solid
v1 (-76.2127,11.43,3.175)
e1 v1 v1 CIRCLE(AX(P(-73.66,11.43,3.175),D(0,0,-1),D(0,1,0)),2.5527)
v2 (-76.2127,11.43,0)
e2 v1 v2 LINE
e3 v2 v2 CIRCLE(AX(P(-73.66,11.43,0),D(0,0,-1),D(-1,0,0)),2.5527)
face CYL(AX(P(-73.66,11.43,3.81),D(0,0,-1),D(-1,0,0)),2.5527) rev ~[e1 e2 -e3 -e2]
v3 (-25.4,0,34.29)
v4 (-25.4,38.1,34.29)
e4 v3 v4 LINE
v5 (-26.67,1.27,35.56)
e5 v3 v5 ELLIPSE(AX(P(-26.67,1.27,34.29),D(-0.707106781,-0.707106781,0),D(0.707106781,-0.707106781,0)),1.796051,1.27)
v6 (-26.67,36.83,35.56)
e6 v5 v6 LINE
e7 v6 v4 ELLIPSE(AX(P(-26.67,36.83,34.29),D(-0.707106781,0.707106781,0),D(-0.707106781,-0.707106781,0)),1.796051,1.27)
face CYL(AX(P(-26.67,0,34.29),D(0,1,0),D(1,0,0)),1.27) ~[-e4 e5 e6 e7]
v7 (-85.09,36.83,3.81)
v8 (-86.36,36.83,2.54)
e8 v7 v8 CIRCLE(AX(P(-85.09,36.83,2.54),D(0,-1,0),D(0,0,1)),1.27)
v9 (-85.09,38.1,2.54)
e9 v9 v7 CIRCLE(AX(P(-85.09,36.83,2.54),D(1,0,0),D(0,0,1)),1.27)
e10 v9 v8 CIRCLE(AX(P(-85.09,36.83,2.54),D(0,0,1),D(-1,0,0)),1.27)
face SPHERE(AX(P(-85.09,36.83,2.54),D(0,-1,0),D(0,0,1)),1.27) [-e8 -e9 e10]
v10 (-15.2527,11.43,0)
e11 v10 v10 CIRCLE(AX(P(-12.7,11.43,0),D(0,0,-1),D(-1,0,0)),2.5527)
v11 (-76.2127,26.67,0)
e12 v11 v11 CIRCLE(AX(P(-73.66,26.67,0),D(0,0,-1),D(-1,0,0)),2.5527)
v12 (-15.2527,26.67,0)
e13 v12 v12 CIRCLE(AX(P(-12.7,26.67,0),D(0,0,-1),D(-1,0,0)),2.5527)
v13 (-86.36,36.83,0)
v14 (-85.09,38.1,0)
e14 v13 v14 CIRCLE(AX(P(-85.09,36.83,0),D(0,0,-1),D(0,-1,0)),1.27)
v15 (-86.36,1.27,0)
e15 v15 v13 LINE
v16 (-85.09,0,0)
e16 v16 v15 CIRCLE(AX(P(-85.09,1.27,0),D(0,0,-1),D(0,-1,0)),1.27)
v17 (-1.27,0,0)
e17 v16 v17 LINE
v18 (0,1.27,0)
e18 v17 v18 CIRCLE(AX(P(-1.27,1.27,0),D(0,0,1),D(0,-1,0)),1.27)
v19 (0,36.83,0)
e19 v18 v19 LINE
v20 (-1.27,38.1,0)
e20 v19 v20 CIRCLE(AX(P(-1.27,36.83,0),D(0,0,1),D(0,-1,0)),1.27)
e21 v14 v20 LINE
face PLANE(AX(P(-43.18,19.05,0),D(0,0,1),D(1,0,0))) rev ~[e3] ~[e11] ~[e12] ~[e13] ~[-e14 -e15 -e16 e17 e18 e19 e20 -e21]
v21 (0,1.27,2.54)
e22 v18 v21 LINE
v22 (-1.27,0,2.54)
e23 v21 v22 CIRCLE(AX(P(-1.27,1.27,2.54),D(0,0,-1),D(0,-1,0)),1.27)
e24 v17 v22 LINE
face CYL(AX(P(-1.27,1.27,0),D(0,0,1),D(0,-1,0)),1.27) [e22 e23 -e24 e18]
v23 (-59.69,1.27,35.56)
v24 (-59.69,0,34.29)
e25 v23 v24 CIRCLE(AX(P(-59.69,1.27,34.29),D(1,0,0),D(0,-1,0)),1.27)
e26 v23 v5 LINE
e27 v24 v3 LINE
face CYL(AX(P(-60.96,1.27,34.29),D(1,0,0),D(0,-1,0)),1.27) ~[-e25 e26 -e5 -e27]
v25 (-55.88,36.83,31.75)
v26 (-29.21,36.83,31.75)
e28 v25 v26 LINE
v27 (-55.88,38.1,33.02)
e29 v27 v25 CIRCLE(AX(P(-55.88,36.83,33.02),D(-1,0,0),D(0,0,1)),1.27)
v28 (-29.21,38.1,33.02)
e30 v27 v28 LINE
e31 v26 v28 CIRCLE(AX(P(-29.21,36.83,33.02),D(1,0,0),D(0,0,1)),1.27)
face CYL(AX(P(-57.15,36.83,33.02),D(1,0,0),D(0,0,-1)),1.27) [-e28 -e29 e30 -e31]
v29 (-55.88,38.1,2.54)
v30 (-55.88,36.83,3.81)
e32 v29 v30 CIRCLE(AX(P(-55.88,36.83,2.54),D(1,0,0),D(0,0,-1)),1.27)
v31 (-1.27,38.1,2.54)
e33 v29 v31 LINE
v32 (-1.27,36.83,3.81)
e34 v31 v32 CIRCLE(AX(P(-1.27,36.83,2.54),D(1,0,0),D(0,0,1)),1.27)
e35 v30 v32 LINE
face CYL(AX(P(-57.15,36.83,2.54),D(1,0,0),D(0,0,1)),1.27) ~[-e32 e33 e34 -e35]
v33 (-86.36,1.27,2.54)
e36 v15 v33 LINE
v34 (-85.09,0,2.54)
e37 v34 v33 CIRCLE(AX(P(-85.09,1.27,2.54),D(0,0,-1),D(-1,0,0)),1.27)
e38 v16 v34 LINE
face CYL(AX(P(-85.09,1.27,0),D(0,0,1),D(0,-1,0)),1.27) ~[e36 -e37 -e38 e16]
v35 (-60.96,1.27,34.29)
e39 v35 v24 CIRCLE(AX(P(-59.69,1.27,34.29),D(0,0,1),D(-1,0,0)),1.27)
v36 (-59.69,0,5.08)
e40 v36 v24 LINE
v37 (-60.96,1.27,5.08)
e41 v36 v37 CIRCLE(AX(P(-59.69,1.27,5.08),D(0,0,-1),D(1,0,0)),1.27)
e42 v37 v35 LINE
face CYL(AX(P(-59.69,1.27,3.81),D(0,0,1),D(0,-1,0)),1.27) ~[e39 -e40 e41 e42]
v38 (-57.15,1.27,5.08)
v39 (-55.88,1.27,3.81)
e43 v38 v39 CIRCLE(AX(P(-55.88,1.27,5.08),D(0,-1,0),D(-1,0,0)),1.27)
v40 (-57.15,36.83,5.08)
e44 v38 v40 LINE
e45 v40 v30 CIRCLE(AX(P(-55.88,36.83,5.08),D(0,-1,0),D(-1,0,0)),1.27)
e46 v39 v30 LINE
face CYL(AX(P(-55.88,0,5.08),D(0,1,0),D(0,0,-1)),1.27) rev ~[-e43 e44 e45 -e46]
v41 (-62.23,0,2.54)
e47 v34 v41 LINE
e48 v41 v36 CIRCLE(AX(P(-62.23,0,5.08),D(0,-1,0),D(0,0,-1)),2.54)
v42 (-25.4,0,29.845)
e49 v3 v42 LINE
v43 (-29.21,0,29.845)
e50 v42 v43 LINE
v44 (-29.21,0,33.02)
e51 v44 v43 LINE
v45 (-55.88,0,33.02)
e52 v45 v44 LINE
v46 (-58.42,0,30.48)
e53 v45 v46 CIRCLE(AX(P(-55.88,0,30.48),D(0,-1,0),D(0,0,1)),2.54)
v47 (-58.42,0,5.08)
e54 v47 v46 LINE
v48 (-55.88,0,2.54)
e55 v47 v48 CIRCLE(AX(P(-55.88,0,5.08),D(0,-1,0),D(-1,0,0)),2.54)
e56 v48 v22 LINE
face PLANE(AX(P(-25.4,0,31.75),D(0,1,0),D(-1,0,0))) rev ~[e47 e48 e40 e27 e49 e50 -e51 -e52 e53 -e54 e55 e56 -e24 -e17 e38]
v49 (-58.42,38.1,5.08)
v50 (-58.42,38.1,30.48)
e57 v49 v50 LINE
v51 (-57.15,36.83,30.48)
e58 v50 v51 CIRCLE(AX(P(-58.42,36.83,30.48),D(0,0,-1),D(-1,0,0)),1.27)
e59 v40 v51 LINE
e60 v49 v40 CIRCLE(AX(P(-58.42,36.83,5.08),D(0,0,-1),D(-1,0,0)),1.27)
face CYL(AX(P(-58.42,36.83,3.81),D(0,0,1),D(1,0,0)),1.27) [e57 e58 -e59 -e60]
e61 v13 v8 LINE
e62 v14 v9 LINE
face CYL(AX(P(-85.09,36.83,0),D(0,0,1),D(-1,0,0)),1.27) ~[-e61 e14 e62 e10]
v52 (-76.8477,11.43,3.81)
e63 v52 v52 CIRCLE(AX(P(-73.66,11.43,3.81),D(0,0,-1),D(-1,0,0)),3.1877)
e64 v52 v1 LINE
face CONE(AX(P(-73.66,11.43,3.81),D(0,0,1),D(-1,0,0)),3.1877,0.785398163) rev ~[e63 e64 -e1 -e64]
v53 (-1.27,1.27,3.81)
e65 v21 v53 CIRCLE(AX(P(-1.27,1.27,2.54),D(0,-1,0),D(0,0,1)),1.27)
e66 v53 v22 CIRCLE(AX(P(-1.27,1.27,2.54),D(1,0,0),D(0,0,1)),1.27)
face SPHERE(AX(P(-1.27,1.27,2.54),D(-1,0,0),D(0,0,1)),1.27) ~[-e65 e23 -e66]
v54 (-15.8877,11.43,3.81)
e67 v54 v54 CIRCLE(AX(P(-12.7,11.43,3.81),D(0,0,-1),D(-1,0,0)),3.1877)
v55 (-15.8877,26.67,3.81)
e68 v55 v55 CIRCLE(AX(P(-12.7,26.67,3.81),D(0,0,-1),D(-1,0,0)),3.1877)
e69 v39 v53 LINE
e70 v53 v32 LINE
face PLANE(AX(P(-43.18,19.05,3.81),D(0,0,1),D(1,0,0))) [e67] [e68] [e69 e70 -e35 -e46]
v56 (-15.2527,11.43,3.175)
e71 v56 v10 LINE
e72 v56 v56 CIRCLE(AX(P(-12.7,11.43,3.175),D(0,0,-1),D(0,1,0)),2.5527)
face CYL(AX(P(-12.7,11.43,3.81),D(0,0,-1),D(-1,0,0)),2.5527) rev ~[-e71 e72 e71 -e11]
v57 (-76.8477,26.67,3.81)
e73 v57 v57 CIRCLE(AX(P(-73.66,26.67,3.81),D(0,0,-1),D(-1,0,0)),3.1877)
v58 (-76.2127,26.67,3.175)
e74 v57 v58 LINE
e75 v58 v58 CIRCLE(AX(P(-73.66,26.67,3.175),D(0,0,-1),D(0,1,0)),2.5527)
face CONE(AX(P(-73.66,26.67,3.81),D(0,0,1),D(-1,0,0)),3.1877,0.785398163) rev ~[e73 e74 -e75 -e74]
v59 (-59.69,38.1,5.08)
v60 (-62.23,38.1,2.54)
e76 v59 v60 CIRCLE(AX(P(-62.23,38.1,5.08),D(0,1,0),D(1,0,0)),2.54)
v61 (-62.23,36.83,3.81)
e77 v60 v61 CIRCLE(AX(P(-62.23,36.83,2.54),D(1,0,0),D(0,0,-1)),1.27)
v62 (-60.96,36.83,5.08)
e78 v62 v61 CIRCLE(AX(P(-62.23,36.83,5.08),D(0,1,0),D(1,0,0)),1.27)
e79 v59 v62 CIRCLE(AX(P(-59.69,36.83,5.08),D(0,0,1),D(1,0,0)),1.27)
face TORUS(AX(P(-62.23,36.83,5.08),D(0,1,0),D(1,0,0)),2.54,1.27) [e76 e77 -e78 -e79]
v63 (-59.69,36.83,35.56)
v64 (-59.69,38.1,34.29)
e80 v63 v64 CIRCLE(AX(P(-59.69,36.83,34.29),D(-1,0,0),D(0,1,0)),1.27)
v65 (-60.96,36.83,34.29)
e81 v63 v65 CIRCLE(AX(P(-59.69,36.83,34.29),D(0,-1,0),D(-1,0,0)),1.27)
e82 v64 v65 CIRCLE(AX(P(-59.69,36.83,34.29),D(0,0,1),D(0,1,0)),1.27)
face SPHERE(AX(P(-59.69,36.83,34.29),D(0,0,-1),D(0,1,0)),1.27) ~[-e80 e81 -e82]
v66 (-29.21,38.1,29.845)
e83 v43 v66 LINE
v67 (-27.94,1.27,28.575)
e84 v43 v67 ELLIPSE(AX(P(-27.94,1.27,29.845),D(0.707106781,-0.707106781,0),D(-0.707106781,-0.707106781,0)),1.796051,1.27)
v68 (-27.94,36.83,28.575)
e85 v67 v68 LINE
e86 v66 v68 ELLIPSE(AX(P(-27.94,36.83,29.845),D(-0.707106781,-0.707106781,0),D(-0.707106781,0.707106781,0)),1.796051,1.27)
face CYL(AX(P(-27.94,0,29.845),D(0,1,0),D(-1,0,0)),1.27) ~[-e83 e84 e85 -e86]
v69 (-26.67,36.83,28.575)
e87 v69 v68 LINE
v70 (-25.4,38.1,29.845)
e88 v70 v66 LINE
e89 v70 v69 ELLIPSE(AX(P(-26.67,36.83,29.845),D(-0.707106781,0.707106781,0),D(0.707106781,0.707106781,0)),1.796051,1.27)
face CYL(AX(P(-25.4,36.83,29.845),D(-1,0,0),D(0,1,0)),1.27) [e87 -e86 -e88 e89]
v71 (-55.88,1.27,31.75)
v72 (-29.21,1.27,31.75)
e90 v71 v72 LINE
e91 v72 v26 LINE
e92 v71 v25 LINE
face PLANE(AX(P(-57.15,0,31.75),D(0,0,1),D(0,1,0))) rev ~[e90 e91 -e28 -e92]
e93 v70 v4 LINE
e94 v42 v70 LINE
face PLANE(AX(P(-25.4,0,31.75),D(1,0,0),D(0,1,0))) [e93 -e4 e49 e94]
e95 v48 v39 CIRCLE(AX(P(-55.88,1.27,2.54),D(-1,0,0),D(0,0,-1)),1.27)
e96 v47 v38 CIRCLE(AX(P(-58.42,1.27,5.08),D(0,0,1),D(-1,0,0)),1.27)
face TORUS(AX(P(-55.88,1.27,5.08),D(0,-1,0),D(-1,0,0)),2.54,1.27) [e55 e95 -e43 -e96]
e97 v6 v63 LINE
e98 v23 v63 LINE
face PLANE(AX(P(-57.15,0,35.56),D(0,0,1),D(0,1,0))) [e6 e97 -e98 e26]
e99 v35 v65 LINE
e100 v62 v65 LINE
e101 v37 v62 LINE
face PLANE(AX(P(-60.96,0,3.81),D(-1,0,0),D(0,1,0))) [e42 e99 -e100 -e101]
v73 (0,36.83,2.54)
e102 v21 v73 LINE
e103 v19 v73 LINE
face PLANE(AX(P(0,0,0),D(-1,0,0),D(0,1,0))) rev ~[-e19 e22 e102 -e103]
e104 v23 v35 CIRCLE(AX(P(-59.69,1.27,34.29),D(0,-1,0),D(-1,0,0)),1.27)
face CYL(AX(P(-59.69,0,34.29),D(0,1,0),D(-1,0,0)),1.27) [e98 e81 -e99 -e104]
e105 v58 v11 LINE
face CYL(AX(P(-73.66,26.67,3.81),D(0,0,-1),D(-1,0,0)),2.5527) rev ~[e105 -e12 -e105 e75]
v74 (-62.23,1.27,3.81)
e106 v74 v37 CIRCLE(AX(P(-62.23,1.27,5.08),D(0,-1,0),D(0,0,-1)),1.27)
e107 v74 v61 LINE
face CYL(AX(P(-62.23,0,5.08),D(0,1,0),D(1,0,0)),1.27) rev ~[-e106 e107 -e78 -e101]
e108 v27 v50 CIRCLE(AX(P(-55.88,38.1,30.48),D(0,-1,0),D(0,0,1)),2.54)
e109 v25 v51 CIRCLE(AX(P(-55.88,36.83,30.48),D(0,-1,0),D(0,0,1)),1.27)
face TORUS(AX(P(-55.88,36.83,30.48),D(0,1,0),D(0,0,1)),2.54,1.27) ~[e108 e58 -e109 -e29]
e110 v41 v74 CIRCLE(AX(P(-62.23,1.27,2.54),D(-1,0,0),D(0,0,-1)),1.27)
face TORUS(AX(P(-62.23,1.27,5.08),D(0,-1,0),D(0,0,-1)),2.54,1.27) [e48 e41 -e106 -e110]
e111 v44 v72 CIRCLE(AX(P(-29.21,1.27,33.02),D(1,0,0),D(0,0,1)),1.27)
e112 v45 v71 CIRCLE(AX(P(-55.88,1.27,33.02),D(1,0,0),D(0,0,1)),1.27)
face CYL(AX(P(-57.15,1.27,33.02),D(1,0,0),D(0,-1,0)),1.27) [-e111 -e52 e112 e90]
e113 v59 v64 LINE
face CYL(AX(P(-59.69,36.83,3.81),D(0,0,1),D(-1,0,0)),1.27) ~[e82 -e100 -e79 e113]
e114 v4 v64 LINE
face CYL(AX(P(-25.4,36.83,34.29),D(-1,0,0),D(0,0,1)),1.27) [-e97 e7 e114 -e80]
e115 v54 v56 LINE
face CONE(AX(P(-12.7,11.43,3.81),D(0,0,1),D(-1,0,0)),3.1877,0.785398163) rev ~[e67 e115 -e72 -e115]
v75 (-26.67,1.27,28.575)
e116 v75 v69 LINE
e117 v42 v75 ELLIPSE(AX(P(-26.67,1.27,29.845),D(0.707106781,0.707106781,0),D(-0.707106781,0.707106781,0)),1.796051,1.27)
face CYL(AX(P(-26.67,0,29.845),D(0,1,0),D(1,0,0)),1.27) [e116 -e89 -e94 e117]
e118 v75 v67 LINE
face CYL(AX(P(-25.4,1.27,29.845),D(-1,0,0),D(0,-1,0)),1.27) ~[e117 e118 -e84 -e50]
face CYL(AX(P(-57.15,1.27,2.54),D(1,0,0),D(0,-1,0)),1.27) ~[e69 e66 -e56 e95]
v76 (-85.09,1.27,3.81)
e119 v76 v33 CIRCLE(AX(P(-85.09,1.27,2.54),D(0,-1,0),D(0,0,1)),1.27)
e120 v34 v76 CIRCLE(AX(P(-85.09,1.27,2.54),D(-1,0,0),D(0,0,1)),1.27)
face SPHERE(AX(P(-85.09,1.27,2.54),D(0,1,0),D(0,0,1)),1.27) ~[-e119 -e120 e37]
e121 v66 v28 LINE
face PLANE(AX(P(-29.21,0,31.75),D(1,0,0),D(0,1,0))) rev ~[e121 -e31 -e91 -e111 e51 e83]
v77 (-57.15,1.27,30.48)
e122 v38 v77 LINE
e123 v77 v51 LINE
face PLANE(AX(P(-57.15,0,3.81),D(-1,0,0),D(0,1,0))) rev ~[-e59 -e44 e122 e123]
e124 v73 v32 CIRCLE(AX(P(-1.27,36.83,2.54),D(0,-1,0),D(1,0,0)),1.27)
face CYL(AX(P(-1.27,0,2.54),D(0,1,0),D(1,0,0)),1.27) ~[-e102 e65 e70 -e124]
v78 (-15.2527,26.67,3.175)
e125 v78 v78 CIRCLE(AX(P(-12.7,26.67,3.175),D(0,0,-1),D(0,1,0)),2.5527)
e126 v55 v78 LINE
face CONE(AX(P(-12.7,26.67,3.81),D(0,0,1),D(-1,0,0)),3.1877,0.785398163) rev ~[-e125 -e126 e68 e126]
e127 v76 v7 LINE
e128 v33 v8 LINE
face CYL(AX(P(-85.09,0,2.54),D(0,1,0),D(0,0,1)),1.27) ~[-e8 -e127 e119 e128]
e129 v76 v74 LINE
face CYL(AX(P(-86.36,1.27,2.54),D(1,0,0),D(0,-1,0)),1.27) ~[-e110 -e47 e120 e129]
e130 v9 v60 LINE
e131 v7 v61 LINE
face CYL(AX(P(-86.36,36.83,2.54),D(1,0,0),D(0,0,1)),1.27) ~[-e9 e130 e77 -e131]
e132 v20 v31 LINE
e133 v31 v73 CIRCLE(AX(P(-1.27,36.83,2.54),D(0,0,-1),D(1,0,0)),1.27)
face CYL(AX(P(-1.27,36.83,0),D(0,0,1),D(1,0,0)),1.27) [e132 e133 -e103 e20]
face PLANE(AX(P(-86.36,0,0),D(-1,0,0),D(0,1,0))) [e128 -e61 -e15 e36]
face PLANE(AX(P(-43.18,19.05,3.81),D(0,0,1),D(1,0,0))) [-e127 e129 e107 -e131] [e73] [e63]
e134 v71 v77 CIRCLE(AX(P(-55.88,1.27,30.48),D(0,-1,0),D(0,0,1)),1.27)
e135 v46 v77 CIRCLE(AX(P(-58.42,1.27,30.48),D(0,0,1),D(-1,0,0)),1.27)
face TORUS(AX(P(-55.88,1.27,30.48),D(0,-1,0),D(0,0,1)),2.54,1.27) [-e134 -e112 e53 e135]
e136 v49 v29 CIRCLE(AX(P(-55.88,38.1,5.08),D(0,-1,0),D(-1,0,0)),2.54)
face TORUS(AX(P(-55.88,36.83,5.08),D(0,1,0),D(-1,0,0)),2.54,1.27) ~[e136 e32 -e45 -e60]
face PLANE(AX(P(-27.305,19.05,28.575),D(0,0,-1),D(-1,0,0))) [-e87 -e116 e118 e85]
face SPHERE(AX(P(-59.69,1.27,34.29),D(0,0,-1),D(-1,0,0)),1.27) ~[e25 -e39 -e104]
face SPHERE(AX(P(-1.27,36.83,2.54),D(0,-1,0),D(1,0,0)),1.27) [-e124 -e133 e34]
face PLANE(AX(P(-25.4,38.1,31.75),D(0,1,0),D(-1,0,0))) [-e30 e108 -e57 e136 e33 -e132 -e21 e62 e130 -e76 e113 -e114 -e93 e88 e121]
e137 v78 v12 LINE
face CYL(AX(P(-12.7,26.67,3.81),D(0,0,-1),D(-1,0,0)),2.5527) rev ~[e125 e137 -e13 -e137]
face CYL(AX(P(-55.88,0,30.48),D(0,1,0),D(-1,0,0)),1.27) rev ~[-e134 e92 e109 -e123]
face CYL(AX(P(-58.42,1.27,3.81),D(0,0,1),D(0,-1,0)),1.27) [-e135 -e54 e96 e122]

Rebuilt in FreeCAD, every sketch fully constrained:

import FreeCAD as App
import Part
import Sketcher
from FreeCAD import Vector
Q = App.Units.Quantity


def edges_at(feature, points):
    """Names of the edges that pass closest to the given points."""
    edges = feature.Shape.Edges
    near = lambda p: min(range(len(edges)), key=lambda i: edges[i].distToShape(Part.Vertex(*p))[0])
    return sorted({f"Edge{near(p) + 1}" for p in points})

doc = App.newDocument("Part")
body = doc.addObject("PartDesign::Body", "Body")

# Sketch on XY plane
sketch1 = body.newObject("Sketcher::SketchObject", "Sketch")
sketch1.AttachmentSupport = (doc.getObject("XY_Plane"), [""])
sketch1.MapMode = "FlatFace"
sketch1.addGeometry([
    Part.LineSegment(Vector(-86, 38, 0), Vector(-86, 0, 0)),
    Part.LineSegment(Vector(-86, 0, 0), Vector(0, 0, 0)),
    Part.LineSegment(Vector(0, 0, 0), Vector(0, 38, 0)),
    Part.LineSegment(Vector(0, 38, 0), Vector(-86, 38, 0)),
], False)
sketch1.addConstraint([
    Sketcher.Constraint("Coincident", 0, 2, 1, 1),
    Sketcher.Constraint("Coincident", 1, 2, 2, 1),
    Sketcher.Constraint("Coincident", 2, 2, 3, 1),
    Sketcher.Constraint("Coincident", 3, 2, 0, 1),
    Sketcher.Constraint("Vertical", 0),
    Sketcher.Constraint("Horizontal", 1),
    Sketcher.Constraint("Vertical", 2),
    Sketcher.Constraint("Horizontal", 3),
    Sketcher.Constraint("Coincident", 1, 2, -1, 1),
    Sketcher.Constraint("DistanceX", 1, 1, 1, 2, Q("3.4 in")),
    Sketcher.Constraint("DistanceY", 0, 2, 0, 1, Q("1.5 in")),
])
pad1 = body.newObject("PartDesign::Pad", "Pad")
pad1.Profile = sketch1
pad1.Length = Q("0.15 in")

# Sketch on XY plane
sketch2 = body.newObject("Sketcher::SketchObject", "Sketch001")
sketch2.AttachmentSupport = (doc.getObject("XY_Plane"), [""])
sketch2.MapMode = "FlatFace"
sketch2.AttachmentOffset = App.Placement(Vector(0, 0, 0.15 * 25.4), App.Rotation())
sketch2.addGeometry([
    Part.LineSegment(Vector(-61, 38.1, 0), Vector(-61, 0, 0)),
    Part.LineSegment(Vector(-61, 0, 0), Vector(-57.1, 0, 0)),
    Part.LineSegment(Vector(-57.1, 0, 0), Vector(-57.1, 38.1, 0)),
    Part.LineSegment(Vector(-57.1, 38.1, 0), Vector(-61, 38.1, 0)),
], False)
sketch2.addConstraint([
    Sketcher.Constraint("Coincident", 0, 2, 1, 1),
    Sketcher.Constraint("Coincident", 1, 2, 2, 1),
    Sketcher.Constraint("Coincident", 2, 2, 3, 1),
    Sketcher.Constraint("Coincident", 3, 2, 0, 1),
    Sketcher.Constraint("Vertical", 0),
    Sketcher.Constraint("Horizontal", 1),
    Sketcher.Constraint("Vertical", 2),
    Sketcher.Constraint("Horizontal", 3),
    Sketcher.Constraint("PointOnObject", 0, 2, -1),
    Sketcher.Constraint("DistanceY", 0, 2, 0, 1, Q("1.5 in")),
    Sketcher.Constraint("DistanceX", 1, 1, 1, 2, Q("0.15 in")),
    Sketcher.Constraint("DistanceX", 0, 2, -1, 1, Q("2.4 in")),
])
pad2 = body.newObject("PartDesign::Pad", "Pad001")
pad2.Profile = sketch2
pad2.Length = Q("1.25 in")

# Sketch on YZ plane
sketch3 = body.newObject("Sketcher::SketchObject", "Sketch002")
sketch3.AttachmentSupport = (doc.getObject("YZ_Plane"), [""])
sketch3.MapMode = "FlatFace"
sketch3.AttachmentOffset = App.Placement(Vector(0, 0, -2.25 * 25.4), App.Rotation())
sketch3.addGeometry([
    Part.LineSegment(Vector(38.1, 35.6, 0), Vector(0, 35.6, 0)),
    Part.LineSegment(Vector(0, 35.6, 0), Vector(0, 31.8, 0)),
    Part.LineSegment(Vector(0, 31.8, 0), Vector(38.1, 31.8, 0)),
    Part.LineSegment(Vector(38.1, 31.8, 0), Vector(38.1, 35.6, 0)),
], False)
sketch3.addConstraint([
    Sketcher.Constraint("Coincident", 0, 2, 1, 1),
    Sketcher.Constraint("Coincident", 1, 2, 2, 1),
    Sketcher.Constraint("Coincident", 2, 2, 3, 1),
    Sketcher.Constraint("Coincident", 3, 2, 0, 1),
    Sketcher.Constraint("Horizontal", 0),
    Sketcher.Constraint("Vertical", 1),
    Sketcher.Constraint("Horizontal", 2),
    Sketcher.Constraint("Vertical", 3),
    Sketcher.Constraint("PointOnObject", 0, 2, -2),
    Sketcher.Constraint("DistanceX", 0, 2, 0, 1, Q("1.5 in")),
    Sketcher.Constraint("DistanceY", 1, 2, 1, 1, Q("0.15 in")),
    Sketcher.Constraint("DistanceY", -1, 1, 0, 2, Q("1.4 in")),
])
pad3 = body.newObject("PartDesign::Pad", "Pad002")
pad3.Profile = sketch3
pad3.Length = Q("1.25 in")

# Sketch on XY plane
sketch4 = body.newObject("Sketcher::SketchObject", "Sketch003")
sketch4.AttachmentSupport = (doc.getObject("XY_Plane"), [""])
sketch4.MapMode = "FlatFace"
sketch4.AttachmentOffset = App.Placement(Vector(0, 0, 1.25 * 25.4), App.Rotation())
sketch4.addGeometry([
    Part.LineSegment(Vector(-25.4, 38.1, 0), Vector(-25.4, 0, 0)),
    Part.LineSegment(Vector(-25.4, 0, 0), Vector(-29.2, 0, 0)),
    Part.LineSegment(Vector(-29.2, 0, 0), Vector(-29.2, 38.1, 0)),
    Part.LineSegment(Vector(-29.2, 38.1, 0), Vector(-25.4, 38.1, 0)),
], False)
sketch4.addConstraint([
    Sketcher.Constraint("Coincident", 0, 2, 1, 1),
    Sketcher.Constraint("Coincident", 1, 2, 2, 1),
    Sketcher.Constraint("Coincident", 2, 2, 3, 1),
    Sketcher.Constraint("Coincident", 3, 2, 0, 1),
    Sketcher.Constraint("Vertical", 0),
    Sketcher.Constraint("Horizontal", 1),
    Sketcher.Constraint("Vertical", 2),
    Sketcher.Constraint("Horizontal", 3),
    Sketcher.Constraint("PointOnObject", 0, 2, -1),
    Sketcher.Constraint("DistanceY", 0, 2, 0, 1, Q("1.5 in")),
    Sketcher.Constraint("DistanceX", 0, 2, -1, 1, Q("1 in")),
    Sketcher.Constraint("DistanceX", 1, 2, 1, 1, Q("0.15 in")),
])
pad4 = body.newObject("PartDesign::Pad", "Pad003")
pad4.Profile = sketch4
pad4.Length = Q("0.125 in")
pad4.Reversed = True
doc.recompute()

fillet = body.newObject("PartDesign::Fillet", "Fillet")
fillet.Base = (pad4, edges_at(pad4, [
    (-86.36, 19.05, 3.81),
    (-73.66, 38.1, 3.81),
    (-28.575, 0, 3.81),
    (-57.15, 19.05, 3.81),
    (-60.96, 19.05, 3.81),
    (-73.66, 0, 3.81),
    (-60.96, 38.1, 19.685),
    (-60.96, 0, 19.685),
    (-43.18, 38.1, 35.56),
    (-60.96, 19.05, 35.56),
    (-43.18, 0, 35.56),
    (-57.15, 38.1, 17.78),
    (-57.15, 0, 17.78),
    (-57.15, 19.05, 31.75),
    (-25.4, 19.05, 35.56),
    (-43.18, 38.1, 31.75),
    (-43.18, 0, 31.75),
    (-25.4, 19.05, 28.575),
    (-27.305, 0, 28.575),
    (-29.21, 19.05, 28.575),
    (-27.305, 38.1, 28.575),
    (0, 19.05, 3.81),
    (0, 0, 1.905),
    (-86.36, 0, 1.905),
    (-86.36, 38.1, 1.905),
    (0, 38.1, 1.905),
    (-28.575, 38.1, 3.81),
]))
fillet.Radius = Q("0.05 in")

# Sketch on XY plane
sketch5 = body.newObject("Sketcher::SketchObject", "Sketch004")
sketch5.AttachmentSupport = (doc.getObject("XY_Plane"), [""])
sketch5.MapMode = "FlatFace"
sketch5.AttachmentOffset = App.Placement(Vector(0, 0, 0.15 * 25.4), App.Rotation())
sketch5.addGeometry([
    Part.Circle(Vector(-73.7, 11.4, 0), Vector(0, 0, 1), 2.6),
    Part.Circle(Vector(-73.7, 26.7, 0), Vector(0, 0, 1), 2.6),
    Part.Circle(Vector(-12.7, 11.4, 0), Vector(0, 0, 1), 2.6),
    Part.Circle(Vector(-12.7, 26.7, 0), Vector(0, 0, 1), 2.6),
], False)
sketch5.addConstraint([
    Sketcher.Constraint("Equal", 0, 1),
    Sketcher.Constraint("Equal", 1, 2),
    Sketcher.Constraint("Equal", 2, 3),
    Sketcher.Constraint("Horizontal", 0, 3, 2, 3),
    Sketcher.Constraint("Horizontal", 1, 3, 3, 3),
    Sketcher.Constraint("Vertical", 0, 3, 1, 3),
    Sketcher.Constraint("Vertical", 2, 3, 3, 3),
    Sketcher.Constraint("Diameter", 0, Q("0.201 in")),
    Sketcher.Constraint("DistanceX", 0, 3, -1, 1, Q("2.9 in")),
    Sketcher.Constraint("DistanceX", 2, 3, -1, 1, Q("0.5 in")),
    Sketcher.Constraint("DistanceY", 0, 3, 1, 3, Q("0.6 in")),
    Sketcher.Constraint("DistanceY", -1, 1, 0, 3, Q("0.45 in")),
])
doc.recompute()
hole = body.newObject("PartDesign::Hole", "Hole")
hole.Profile = sketch5
hole.ThreadType = "None"
hole.Diameter = Q("0.201 in")
hole.DepthType = "ThroughAll"
hole.HoleCutType = "Countersink"
hole.HoleCutDiameter = Q("0.251 in")
hole.HoleCutCountersinkAngle = 90

doc.recompute()
